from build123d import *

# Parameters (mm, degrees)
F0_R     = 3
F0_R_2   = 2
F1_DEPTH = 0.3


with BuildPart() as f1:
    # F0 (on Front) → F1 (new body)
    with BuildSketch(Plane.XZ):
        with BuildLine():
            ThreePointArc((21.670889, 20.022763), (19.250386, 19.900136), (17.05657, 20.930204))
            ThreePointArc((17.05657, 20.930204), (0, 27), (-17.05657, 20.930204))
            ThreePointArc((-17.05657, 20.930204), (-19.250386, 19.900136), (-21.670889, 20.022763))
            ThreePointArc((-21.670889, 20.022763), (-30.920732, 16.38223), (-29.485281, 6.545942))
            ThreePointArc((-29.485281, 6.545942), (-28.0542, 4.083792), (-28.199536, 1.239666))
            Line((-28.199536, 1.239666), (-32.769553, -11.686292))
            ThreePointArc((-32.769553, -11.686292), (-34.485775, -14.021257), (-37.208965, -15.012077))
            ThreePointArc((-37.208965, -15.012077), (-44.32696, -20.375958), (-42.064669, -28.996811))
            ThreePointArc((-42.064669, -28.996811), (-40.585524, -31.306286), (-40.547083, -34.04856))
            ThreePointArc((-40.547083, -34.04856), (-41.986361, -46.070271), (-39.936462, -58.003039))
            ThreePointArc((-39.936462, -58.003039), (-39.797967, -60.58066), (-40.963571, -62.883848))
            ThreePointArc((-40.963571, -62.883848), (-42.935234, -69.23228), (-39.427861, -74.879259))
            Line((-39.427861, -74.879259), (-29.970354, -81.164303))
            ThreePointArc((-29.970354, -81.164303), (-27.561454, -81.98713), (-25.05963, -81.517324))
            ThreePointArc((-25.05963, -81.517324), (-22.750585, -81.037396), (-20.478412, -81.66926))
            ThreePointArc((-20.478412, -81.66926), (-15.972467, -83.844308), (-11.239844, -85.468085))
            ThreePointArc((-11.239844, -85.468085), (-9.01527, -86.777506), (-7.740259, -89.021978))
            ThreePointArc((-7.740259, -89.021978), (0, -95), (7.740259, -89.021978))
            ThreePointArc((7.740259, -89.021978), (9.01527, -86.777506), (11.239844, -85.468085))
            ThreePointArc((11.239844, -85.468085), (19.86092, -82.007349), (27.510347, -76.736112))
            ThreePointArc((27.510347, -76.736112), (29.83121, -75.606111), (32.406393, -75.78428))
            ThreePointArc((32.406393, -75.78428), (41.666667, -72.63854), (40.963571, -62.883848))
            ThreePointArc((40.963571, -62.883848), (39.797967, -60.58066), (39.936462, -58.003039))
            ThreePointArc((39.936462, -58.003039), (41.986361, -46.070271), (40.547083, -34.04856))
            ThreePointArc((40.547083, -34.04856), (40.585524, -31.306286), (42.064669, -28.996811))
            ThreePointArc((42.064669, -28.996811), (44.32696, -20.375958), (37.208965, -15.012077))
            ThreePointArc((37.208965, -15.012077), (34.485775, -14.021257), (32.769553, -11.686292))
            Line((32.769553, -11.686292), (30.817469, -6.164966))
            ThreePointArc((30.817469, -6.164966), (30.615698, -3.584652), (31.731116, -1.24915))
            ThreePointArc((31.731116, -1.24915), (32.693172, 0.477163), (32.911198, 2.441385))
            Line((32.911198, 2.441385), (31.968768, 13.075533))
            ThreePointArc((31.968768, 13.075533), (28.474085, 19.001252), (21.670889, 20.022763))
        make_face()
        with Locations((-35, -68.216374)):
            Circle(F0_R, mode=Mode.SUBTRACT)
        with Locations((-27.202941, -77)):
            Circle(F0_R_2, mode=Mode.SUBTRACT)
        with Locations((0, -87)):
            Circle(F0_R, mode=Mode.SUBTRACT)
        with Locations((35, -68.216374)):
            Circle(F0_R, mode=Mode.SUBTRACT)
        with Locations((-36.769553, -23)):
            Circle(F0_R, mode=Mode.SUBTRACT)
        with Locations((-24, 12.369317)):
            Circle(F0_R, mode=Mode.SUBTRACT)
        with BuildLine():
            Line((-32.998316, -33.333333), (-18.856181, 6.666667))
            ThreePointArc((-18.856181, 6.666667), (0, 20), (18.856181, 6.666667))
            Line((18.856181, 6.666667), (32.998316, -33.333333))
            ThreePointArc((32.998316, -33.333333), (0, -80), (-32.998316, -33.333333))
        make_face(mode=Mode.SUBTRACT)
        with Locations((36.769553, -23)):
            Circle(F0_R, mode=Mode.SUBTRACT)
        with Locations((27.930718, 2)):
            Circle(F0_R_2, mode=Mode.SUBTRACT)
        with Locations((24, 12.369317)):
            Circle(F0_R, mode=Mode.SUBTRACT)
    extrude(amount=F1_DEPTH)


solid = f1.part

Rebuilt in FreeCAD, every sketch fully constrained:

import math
import FreeCAD as App
import Part
import Sketcher
Q = App.Units.Quantity

doc = App.newDocument("Part")
body = doc.addObject("PartDesign::Body", "Body")

# Sketch on XZ plane
sketch1 = doc.addObject("Sketcher::SketchObject", "Sketch")
body.addObject(sketch1)
sketch1.AttachmentSupport = (doc.XZ_Plane, [""])
sketch1.MapMode = "FlatFace"
sketch1.addGeometry([
    Part.ArcOfCircle(Part.Circle(App.Vector(20.2, 24.8, 0), App.Vector(0, 0, 1), 5), math.radians(-129), math.radians(-73)),  # 0
    Part.ArcOfCircle(Part.Circle(App.Vector(0, 0, 0), App.Vector(0, 0, 1), 27), math.radians(51), math.radians(129)),  # 1
    Part.ArcOfCircle(Part.Circle(App.Vector(-20.2, 24.8, 0), App.Vector(0, 0, 1), 5), math.radians(-107), math.radians(-51)),  # 2
    Part.ArcOfCircle(Part.Circle(App.Vector(-24, 12.4, 0), App.Vector(0, 0, 1), 8), math.radians(73), math.radians(227)),  # 3
    Part.ArcOfCircle(Part.Circle(App.Vector(-32.9, 2.9, 0), App.Vector(0, 0, 1), 5), math.radians(-19), math.radians(47)),  # 4
    Part.LineSegment(App.Vector(-28.2, 1.2, 0), App.Vector(-32.8, -11.7, 0)),  # 5
    Part.ArcOfCircle(Part.Circle(App.Vector(-37.5, -10, 0), App.Vector(0, 0, 1), 5), math.radians(-87), math.radians(-19)),  # 6
    Part.ArcOfCircle(Part.Circle(App.Vector(-36.8, -23, 0), App.Vector(0, 0, 1), 8), math.radians(93), math.radians(229)),  # 7
    Part.ArcOfCircle(Part.Circle(App.Vector(-45.4, -32.7, 0), App.Vector(0, 0, 1), 5), math.radians(-15), math.radians(49)),  # 8
    Part.ArcOfCircle(Part.Circle(App.Vector(0, -45, 0), App.Vector(0, 0, 1), 42), math.radians(165), math.radians(198)),  # 9
    Part.ArcOfCircle(Part.Circle(App.Vector(-44.7, -59.6, 0), App.Vector(0, 0, 1), 5), math.radians(-42), math.radians(18)),  # 10
    Part.ArcOfCircle(Part.Circle(App.Vector(-35, -68.2, 0), App.Vector(0, 0, 1), 8), math.radians(138), math.radians(236)),  # 11
    Part.LineSegment(App.Vector(-39.4, -74.9, 0), App.Vector(-30, -81.2, 0)),  # 12
    Part.ArcOfCircle(Part.Circle(App.Vector(-27.2, -77, 0), App.Vector(0, 0, 1), 5), math.radians(-124), math.radians(-65)),  # 13
    Part.ArcOfCircle(Part.Circle(App.Vector(-22.9, -86, 0), App.Vector(0, 0, 1), 5), math.radians(61), math.radians(115)),  # 14
    Part.ArcOfCircle(Part.Circle(App.Vector(0, -45, 0), App.Vector(0, 0, 1), 42), math.radians(-119.18), math.radians(-105.52)),  # 15
    Part.ArcOfCircle(Part.Circle(App.Vector(-12.6, -90.3, 0), App.Vector(0, 0, 1), 5), math.radians(15), math.radians(74)),  # 16
    Part.ArcOfCircle(Part.Circle(App.Vector(0, -87, 0), App.Vector(0, 0, 1), 8), math.radians(-165), math.radians(-15)),  # 17
    Part.ArcOfCircle(Part.Circle(App.Vector(12.6, -90.3, 0), App.Vector(0, 0, 1), 5), math.radians(106), math.radians(165)),  # 18
    Part.ArcOfCircle(Part.Circle(App.Vector(0, -45, 0), App.Vector(0, 0, 1), 42), math.radians(-74), math.radians(-49)),  # 19
    Part.ArcOfCircle(Part.Circle(App.Vector(30.8, -80.5, 0), App.Vector(0, 0, 1), 5), math.radians(71), math.radians(131)),  # 20
    Part.ArcOfCircle(Part.Circle(App.Vector(35, -68.2, 0), App.Vector(0, 0, 1), 8), math.radians(-109), math.radians(42)),  # 21
    Part.ArcOfCircle(Part.Circle(App.Vector(44.7, -59.6, 0), App.Vector(0, 0, 1), 5), math.radians(162), math.radians(222)),  # 22
    Part.ArcOfCircle(Part.Circle(App.Vector(0, -45, 0), App.Vector(0, 0, 1), 42), math.radians(-18), math.radians(15)),  # 23
    Part.ArcOfCircle(Part.Circle(App.Vector(45.4, -32.7, 0), App.Vector(0, 0, 1), 5), math.radians(131), math.radians(195)),  # 24
    Part.ArcOfCircle(Part.Circle(App.Vector(36.8, -23, 0), App.Vector(0, 0, 1), 8), math.radians(-49), math.radians(87)),  # 25
    Part.ArcOfCircle(Part.Circle(App.Vector(37.5, -10, 0), App.Vector(0, 0, 1), 5), math.radians(-161), math.radians(-93)),  # 26
    Part.LineSegment(App.Vector(32.8, -11.7, 0), App.Vector(30.8, -6.2, 0)),  # 27
    Part.ArcOfCircle(Part.Circle(App.Vector(35.5, -4.5, 0), App.Vector(0, 0, 1), 5), math.radians(139), math.radians(199)),  # 28
    Part.ArcOfCircle(Part.Circle(App.Vector(27.9, 2, 0), App.Vector(0, 0, 1), 5), math.radians(-41), math.radians(5)),  # 29
    Part.LineSegment(App.Vector(32.9, 2.4, 0), App.Vector(32, 13.1, 0)),  # 30
    Part.ArcOfCircle(Part.Circle(App.Vector(24, 12.4, 0), App.Vector(0, 0, 1), 8), math.radians(5), math.radians(107)),  # 31
    Part.Circle(App.Vector(-27.2, -77, 0), App.Vector(0, 0, 1), 2),  # 32
    Part.Circle(App.Vector(-35, -68.2, 0), App.Vector(0, 0, 1), 3),  # 33
    Part.Circle(App.Vector(0, -87, 0), App.Vector(0, 0, 1), 3),  # 34
    Part.Circle(App.Vector(35, -68.2, 0), App.Vector(0, 0, 1), 3),  # 35
    Part.Circle(App.Vector(-36.8, -23, 0), App.Vector(0, 0, 1), 3),  # 36
    Part.Circle(App.Vector(-24, 12.4, 0), App.Vector(0, 0, 1), 3),  # 37
    Part.ArcOfCircle(Part.Circle(App.Vector(0, -45, 0), App.Vector(0, 0, 1), 35), math.radians(161), math.radians(379)),  # 38
    Part.LineSegment(App.Vector(-33, -33.3, 0), App.Vector(-18.9, 6.7, 0)),  # 39
    Part.ArcOfCircle(Part.Circle(App.Vector(0, 0, 0), App.Vector(0, 0, 1), 20), math.radians(19), math.radians(161)),  # 40
    Part.LineSegment(App.Vector(18.9, 6.7, 0), App.Vector(33, -33.3, 0)),  # 41
    Part.Circle(App.Vector(36.8, -23, 0), App.Vector(0, 0, 1), 3),  # 42
    Part.Circle(App.Vector(27.9, 2, 0), App.Vector(0, 0, 1), 2),  # 43
    Part.Circle(App.Vector(24, 12.4, 0), App.Vector(0, 0, 1), 3),  # 44
], False)
sketch1.addConstraint([
    Sketcher.Constraint("Tangent", 0, 1, 1, 1),
    Sketcher.Constraint("Tangent", 1, 2, 2, 2),
    Sketcher.Constraint("Tangent", 2, 1, 3, 1),
    Sketcher.Constraint("Tangent", 3, 2, 4, 2),
    Sketcher.Constraint("Tangent", 4, 1, 5, 1),
    Sketcher.Constraint("Tangent", 5, 2, 6, 2),
    Sketcher.Constraint("Tangent", 6, 1, 7, 1),
    Sketcher.Constraint("Tangent", 7, 2, 8, 2),
    Sketcher.Constraint("Tangent", 8, 1, 9, 1),
    Sketcher.Constraint("Tangent", 9, 2, 10, 2),
    Sketcher.Constraint("Tangent", 10, 1, 11, 1),
    Sketcher.Constraint("Tangent", 11, 2, 12, 1),
    Sketcher.Constraint("Tangent", 12, 2, 13, 1),
    Sketcher.Constraint("Tangent", 13, 2, 14, 2),
    Sketcher.Constraint("Tangent", 14, 1, 15, 1),
    Sketcher.Constraint("Tangent", 15, 2, 16, 2),
    Sketcher.Constraint("Tangent", 16, 1, 17, 1),
    Sketcher.Constraint("Tangent", 17, 2, 18, 2),
    Sketcher.Constraint("Tangent", 18, 1, 19, 1),
    Sketcher.Constraint("Tangent", 19, 2, 20, 2),
    Sketcher.Constraint("Tangent", 20, 1, 21, 1),
    Sketcher.Constraint("Tangent", 21, 2, 22, 2),
    Sketcher.Constraint("Tangent", 22, 1, 23, 1),
    Sketcher.Constraint("Tangent", 23, 2, 24, 2),
    Sketcher.Constraint("Tangent", 24, 1, 25, 1),
    Sketcher.Constraint("Tangent", 25, 2, 26, 2),
    Sketcher.Constraint("Tangent", 26, 1, 27, 1),
    Sketcher.Constraint("Tangent", 27, 2, 28, 2),
    Sketcher.Constraint("Tangent", 28, 1, 29, 1),
    Sketcher.Constraint("Tangent", 29, 2, 30, 1),
    Sketcher.Constraint("Tangent", 30, 2, 31, 1),
    Sketcher.Constraint("Tangent", 31, 2, 0, 2),
    Sketcher.Constraint("Tangent", 38, 1, 39, 1),
    Sketcher.Constraint("Tangent", 39, 2, 40, 2),
    Sketcher.Constraint("Tangent", 40, 1, 41, 1),
    Sketcher.Constraint("Tangent", 41, 2, 38, 2),
    Sketcher.Constraint("Coincident", 1, 3, -1, 1),
    Sketcher.Constraint("Coincident", 40, 3, -1, 1),
    Sketcher.Constraint("Coincident", 23, 3, 9, 3),
    Sketcher.Constraint("Coincident", 32, 3, 13, 3),
    Sketcher.Constraint("Coincident", 33, 3, 11, 3),
    Sketcher.Constraint("Coincident", 34, 3, 17, 3),
    Sketcher.Constraint("Coincident", 35, 3, 21, 3),
    Sketcher.Constraint("Coincident", 36, 3, 7, 3),
    Sketcher.Constraint("Coincident", 37, 3, 3, 3),
    Sketcher.Constraint("Coincident", 38, 3, 9, 3),
    Sketcher.Constraint("Coincident", 42, 3, 25, 3),
    Sketcher.Constraint("Coincident", 43, 3, 29, 3),
    Sketcher.Constraint("Coincident", 44, 3, 31, 3),
    Sketcher.Constraint("Equal", 0, 2),
    Sketcher.Constraint("Equal", 2, 4),
    Sketcher.Constraint("Equal", 3, 7),
    Sketcher.Constraint("Equal", 4, 8),
    Sketcher.Constraint("Equal", 6, 10),
    Sketcher.Constraint("Equal", 7, 11),
    Sketcher.Constraint("Equal", 10, 13),
    Sketcher.Constraint("Equal", 8, 14),
    Sketcher.Constraint("Equal", 13, 16),
    Sketcher.Constraint("Equal", 11, 17),
    Sketcher.Constraint("Equal", 16, 18),
    Sketcher.Constraint("Equal", 13, 20),
    Sketcher.Constraint("Equal", 17, 21),
    Sketcher.Constraint("Equal", 20, 22),
    Sketcher.Constraint("Equal", 9, 23),
    Sketcher.Constraint("Equal", 14, 24),
    Sketcher.Constraint("Equal", 21, 25),
    Sketcher.Constraint("Equal", 22, 26),
    Sketcher.Constraint("Equal", 26, 28),
    Sketcher.Constraint("Equal", 28, 29),
    Sketcher.Constraint("Equal", 25, 31),
    Sketcher.Constraint("Equal", 33, 34),
    Sketcher.Constraint("Equal", 34, 35),
    Sketcher.Constraint("Equal", 35, 36),
    Sketcher.Constraint("Equal", 36, 37),
    Sketcher.Constraint("Equal", 37, 42),
    Sketcher.Constraint("Equal", 32, 43),
    Sketcher.Constraint("Equal", 42, 44),
    Sketcher.Constraint("Symmetric", 16, 3, 18, 3, -2),
    Sketcher.Constraint("Symmetric", 11, 3, 21, 3, -2),
    Sketcher.Constraint("Symmetric", 8, 3, 24, 3, -2),
    Sketcher.Constraint("Symmetric", 6, 3, 26, 3, -2),
    Sketcher.Constraint("Symmetric", 3, 3, 31, 3, -2),
    Sketcher.Constraint("Parallel", 5, 39),
    Sketcher.Constraint("Parallel", 27, 41),
    Sketcher.Constraint("Horizontal", 15, 2, 18, 1),
    Sketcher.Constraint("Diameter", 32, Q("4 mm")),
    Sketcher.Constraint("Diameter", 33, Q("6 mm")),
    Sketcher.Constraint("Radius", 1, Q("27.000002 mm")),
    Sketcher.Constraint("Radius", 3, Q("8 mm")),
    Sketcher.Constraint("Radius", 4, Q("5.000001 mm")),
    Sketcher.Constraint("Radius", 6, Q("4.999999 mm")),
    Sketcher.Constraint("Radius", 38, Q("35 mm")),
    Sketcher.Constraint("Radius", 40, Q("20 mm")),
    Sketcher.Constraint("DistanceX", 3, 3, -1, 1, Q("24 mm")),
    Sketcher.Constraint("DistanceY", 7, 3, -1, 1, Q("23 mm")),
    Sketcher.Constraint("DistanceY", 9, 3, -1, 1, Q("45.000001 mm")),
    Sketcher.Constraint("DistanceX", 11, 3, -1, 1, Q("35.000001 mm")),
    Sketcher.Constraint("DistanceY", 13, 3, -1, 1, Q("77.000001 mm")),
    Sketcher.Constraint("DistanceY", 17, 3, -1, 1, Q("87 mm")),
    Sketcher.Constraint("DistanceY", -1, 1, 29, 3, Q("2 mm")),
    Sketcher.Constraint("Radius", 9, Q("42.000002 mm")),
    Sketcher.Constraint("Radius", 15, Q("42.000043 mm")),
    Sketcher.Constraint("Radius", 19, Q("41.999987 mm")),
    Sketcher.Constraint("DistanceY", 28, 3, -1, 1, Q("4.498299 mm")),
    Sketcher.Constraint("DistanceX", -1, 1, 29, 2, Q("32.911198 mm")),
    Sketcher.Constraint("Distance", 5, Q("13.710049 mm")),
    Sketcher.Constraint("Distance", 12, Q("11.355449 mm")),
    Sketcher.Constraint("Distance", 27, Q("5.856251 mm")),
    Sketcher.Constraint("DistanceY", 10, 3, -1, 1, Q("59.55102 mm")),
    Sketcher.Constraint("DistanceX", 14, 3, -1, 1, Q("22.916319 mm")),
    Sketcher.Constraint("DistanceY", 15, 3, -1, 1, Q("44.99996 mm")),
])
pad1 = doc.addObject("PartDesign::Pad", "Pad")
body.addObject(pad1)
pad1.Profile = sketch1
pad1.Length = 0.3

doc.recompute()
